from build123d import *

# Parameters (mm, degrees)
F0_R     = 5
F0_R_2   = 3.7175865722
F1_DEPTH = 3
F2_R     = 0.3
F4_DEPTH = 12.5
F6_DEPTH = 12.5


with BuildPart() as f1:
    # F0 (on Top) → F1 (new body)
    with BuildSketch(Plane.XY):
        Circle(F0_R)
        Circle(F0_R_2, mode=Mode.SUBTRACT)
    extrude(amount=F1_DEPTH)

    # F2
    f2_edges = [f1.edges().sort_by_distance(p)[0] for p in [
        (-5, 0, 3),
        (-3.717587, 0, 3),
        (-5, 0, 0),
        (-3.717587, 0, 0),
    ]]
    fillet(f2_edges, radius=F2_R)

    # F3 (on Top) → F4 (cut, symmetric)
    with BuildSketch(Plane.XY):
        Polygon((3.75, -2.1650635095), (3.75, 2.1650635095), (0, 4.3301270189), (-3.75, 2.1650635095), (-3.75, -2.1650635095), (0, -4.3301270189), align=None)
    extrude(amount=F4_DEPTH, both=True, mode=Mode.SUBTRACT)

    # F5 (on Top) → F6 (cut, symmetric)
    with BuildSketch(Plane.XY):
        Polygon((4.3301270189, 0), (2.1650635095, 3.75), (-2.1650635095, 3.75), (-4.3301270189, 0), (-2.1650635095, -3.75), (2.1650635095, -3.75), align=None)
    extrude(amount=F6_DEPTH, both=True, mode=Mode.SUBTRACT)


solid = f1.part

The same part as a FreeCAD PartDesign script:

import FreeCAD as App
import Part
import Sketcher
from FreeCAD import Vector
Q = App.Units.Quantity


def edges_at(feature, points):
    """Names of the edges that pass closest to the given points."""
    edges = feature.Shape.Edges
    near = lambda p: min(range(len(edges)), key=lambda i: edges[i].distToShape(Part.Vertex(*p))[0])
    return sorted({f"Edge{near(p) + 1}" for p in points})

doc = App.newDocument("Part")
params = doc.addObject("Spreadsheet::Sheet", "Params")
for row, (alias, value) in enumerate([
    ("sketch1_diameter", "10 mm"),
    ("pad1_length", "3 mm"),
    ("fillet_radius", "0.3 mm"),
    ("pocket1_length", "25 mm"),
    ("pocket2_length", "25 mm"),
], start=1):
    params.set(f"A{row}", alias)
    params.set(f"B{row}", "=" + value)
    params.setAlias(f"B{row}", alias)

body = doc.addObject("PartDesign::Body", "Body")

# Sketch on XY plane
sketch1 = body.newObject("Sketcher::SketchObject", "Sketch")
sketch1.AttachmentSupport = (doc.getObject("XY_Plane"), [""])
sketch1.MapMode = "FlatFace"
sketch1.addGeometry([
    Part.Circle(Vector(0, 0, 0), Vector(0, 0, 1), 5),
    Part.Circle(Vector(0, 0, 0), Vector(0, 0, 1), 3.7),
], False)
sketch1.addConstraint([
    Sketcher.Constraint("Coincident", 0, 3, -1, 1),
    Sketcher.Constraint("Coincident", 1, 3, -1, 1),
    Sketcher.Constraint("Diameter", 0, Q("10 mm")),
    Sketcher.Constraint("Diameter", 1, Q("7.435173 mm")),
])
sketch1.setExpression("Constraints[2]", "Params.sketch1_diameter")
pad1 = body.newObject("PartDesign::Pad", "Pad")
pad1.Profile = sketch1
pad1.setExpression("Length", "Params.pad1_length")
doc.recompute()

fillet = body.newObject("PartDesign::Fillet", "Fillet")
fillet.Base = (pad1, edges_at(pad1, [
    (-5, 0, 3),
    (-3.718, 0, 3),
    (-5, 0, 0),
    (-3.718, 0, 0),
]))
fillet.setExpression("Radius", "Params.fillet_radius")

# Sketch on XY plane
sketch2 = body.newObject("Sketcher::SketchObject", "Sketch001")
sketch2.AttachmentSupport = (doc.getObject("XY_Plane"), [""])
sketch2.MapMode = "FlatFace"
sketch2.addGeometry([
    Part.LineSegment(Vector(3.8, -2.2, 0), Vector(3.8, 2.2, 0)),  # 0
    Part.LineSegment(Vector(3.8, 2.2, 0), Vector(0, 4.3, 0)),  # 1
    Part.LineSegment(Vector(0, 4.3, 0), Vector(-3.8, 2.2, 0)),  # 2
    Part.LineSegment(Vector(-3.8, 2.2, 0), Vector(-3.8, -2.2, 0)),  # 3
    Part.LineSegment(Vector(-3.8, -2.2, 0), Vector(0, -4.3, 0)),  # 4
    Part.LineSegment(Vector(0, -4.3, 0), Vector(3.8, -2.2, 0)),  # 5
], False)
sketch2.addConstraint([
    Sketcher.Constraint("Coincident", 0, 2, 1, 1),
    Sketcher.Constraint("Coincident", 1, 2, 2, 1),
    Sketcher.Constraint("Coincident", 2, 2, 3, 1),
    Sketcher.Constraint("Coincident", 3, 2, 4, 1),
    Sketcher.Constraint("Coincident", 4, 2, 5, 1),
    Sketcher.Constraint("Coincident", 5, 2, 0, 1),
    Sketcher.Constraint("Vertical", 0),
    Sketcher.Constraint("Vertical", 3),
    Sketcher.Constraint("Symmetric", 0, 2, 3, 2, -1, 1),
    Sketcher.Constraint("Symmetric", 1, 2, 4, 2, -1, 1),
    Sketcher.Constraint("PointOnObject", 1, 2, -2),
    Sketcher.Constraint("Parallel", 2, 5),
    Sketcher.Constraint("Horizontal", 0, 2, 2, 2),
    Sketcher.Constraint("Angle", 1, Q("150 deg")),
    Sketcher.Constraint("DistanceX", 2, 2, 0, 2, Q("7.5 mm")),
    Sketcher.Constraint("DistanceY", 0, 1, 0, 2, Q("4.330127 mm")),
])
pocket1 = body.newObject("PartDesign::Pocket", "Pocket")
pocket1.Profile = sketch2
pocket1.setExpression("Length", "Params.pocket1_length")
pocket1.Midplane = True

# Sketch on XY plane
sketch3 = body.newObject("Sketcher::SketchObject", "Sketch002")
sketch3.AttachmentSupport = (doc.getObject("XY_Plane"), [""])
sketch3.MapMode = "FlatFace"
sketch3.addGeometry([
    Part.LineSegment(Vector(4.3, 0, 0), Vector(2.2, 3.8, 0)),  # 0
    Part.LineSegment(Vector(2.2, 3.8, 0), Vector(-2.2, 3.8, 0)),  # 1
    Part.LineSegment(Vector(-2.2, 3.8, 0), Vector(-4.3, 0, 0)),  # 2
    Part.LineSegment(Vector(-4.3, 0, 0), Vector(-2.2, -3.8, 0)),  # 3
    Part.LineSegment(Vector(-2.2, -3.8, 0), Vector(2.2, -3.8, 0)),  # 4
    Part.LineSegment(Vector(2.2, -3.8, 0), Vector(4.3, 0, 0)),  # 5
], False)
sketch3.addConstraint([
    Sketcher.Constraint("Coincident", 0, 2, 1, 1),
    Sketcher.Constraint("Coincident", 1, 2, 2, 1),
    Sketcher.Constraint("Coincident", 2, 2, 3, 1),
    Sketcher.Constraint("Coincident", 3, 2, 4, 1),
    Sketcher.Constraint("Coincident", 4, 2, 5, 1),
    Sketcher.Constraint("Coincident", 5, 2, 0, 1),
    Sketcher.Constraint("Horizontal", 1),
    Sketcher.Constraint("Horizontal", 4),
    Sketcher.Constraint("Symmetric", 0, 2, 3, 2, -1, 1),
    Sketcher.Constraint("Symmetric", 2, 2, 5, 2, -1, 1),
    Sketcher.Constraint("PointOnObject", 2, 2, -1),
    Sketcher.Constraint("Parallel", 2, 5),
    Sketcher.Constraint("Vertical", 1, 2, 3, 2),
    Sketcher.Constraint("Angle", 0, Q("120 deg")),
    Sketcher.Constraint("DistanceY", 3, 2, 1, 2, Q("7.5 mm")),
    Sketcher.Constraint("DistanceX", 1, 2, 1, 1, Q("4.330127 mm")),
])
pocket2 = body.newObject("PartDesign::Pocket", "Pocket001")
pocket2.Profile = sketch3
pocket2.setExpression("Length", "Params.pocket2_length")
pocket2.Midplane = True

doc.recompute()
